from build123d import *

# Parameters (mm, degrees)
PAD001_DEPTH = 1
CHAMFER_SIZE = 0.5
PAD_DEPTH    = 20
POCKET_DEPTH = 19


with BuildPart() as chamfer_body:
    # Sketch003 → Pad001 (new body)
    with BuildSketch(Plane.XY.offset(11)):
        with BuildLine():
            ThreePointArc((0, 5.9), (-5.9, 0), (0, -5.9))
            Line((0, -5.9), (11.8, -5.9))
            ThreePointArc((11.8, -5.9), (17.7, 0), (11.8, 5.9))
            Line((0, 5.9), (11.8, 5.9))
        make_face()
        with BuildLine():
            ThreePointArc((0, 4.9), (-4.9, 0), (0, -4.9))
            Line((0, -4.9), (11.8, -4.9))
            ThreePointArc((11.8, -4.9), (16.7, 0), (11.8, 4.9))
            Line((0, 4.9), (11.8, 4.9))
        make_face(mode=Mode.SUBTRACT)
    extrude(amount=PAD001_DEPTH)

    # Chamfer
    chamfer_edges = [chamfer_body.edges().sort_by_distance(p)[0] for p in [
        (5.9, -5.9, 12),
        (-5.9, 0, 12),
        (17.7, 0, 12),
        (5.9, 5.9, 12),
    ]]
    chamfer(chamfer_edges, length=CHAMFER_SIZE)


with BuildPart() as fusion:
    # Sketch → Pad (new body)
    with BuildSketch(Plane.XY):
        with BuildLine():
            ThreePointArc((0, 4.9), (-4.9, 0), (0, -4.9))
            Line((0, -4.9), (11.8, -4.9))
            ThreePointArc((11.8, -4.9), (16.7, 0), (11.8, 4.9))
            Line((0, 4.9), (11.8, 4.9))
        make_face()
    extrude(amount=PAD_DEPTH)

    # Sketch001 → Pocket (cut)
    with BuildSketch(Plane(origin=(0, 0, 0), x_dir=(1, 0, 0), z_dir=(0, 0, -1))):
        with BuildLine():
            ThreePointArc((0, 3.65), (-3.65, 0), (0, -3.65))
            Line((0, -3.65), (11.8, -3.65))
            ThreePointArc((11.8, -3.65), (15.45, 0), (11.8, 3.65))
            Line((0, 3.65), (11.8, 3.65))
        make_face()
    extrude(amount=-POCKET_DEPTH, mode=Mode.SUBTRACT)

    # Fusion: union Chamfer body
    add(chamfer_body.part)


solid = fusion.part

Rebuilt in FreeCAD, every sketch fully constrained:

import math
import FreeCAD as App
import Part
import Sketcher
from FreeCAD import Vector
Q = App.Units.Quantity


def edges_at(feature, points):
    """Names of the edges that pass closest to the given points."""
    edges = feature.Shape.Edges
    near = lambda p: min(range(len(edges)), key=lambda i: edges[i].distToShape(Part.Vertex(*p))[0])
    return sorted({f"Edge{near(p) + 1}" for p in points})

doc = App.newDocument("Part")
body = doc.addObject("PartDesign::Body", "Body")

sketch1 = doc.addObject("Sketcher::SketchObject", "Sketch")
body.addObject(sketch1)
sketch1.AttachmentSupport = (doc.XY_Plane, [""])
sketch1.MapMode = "FlatFace"
sketch1.AttachmentOffset = App.Placement(Vector(0, 0, 11), App.Rotation())
sketch1.addGeometry([
    Part.ArcOfCircle(Part.Circle(Vector(0, 0, 0), Vector(0, 0, 1), 5.9), math.radians(90), math.radians(270)),
    Part.LineSegment(Vector(0, -5.9, 0), Vector(11.8, -5.9, 0)),
    Part.ArcOfCircle(Part.Circle(Vector(11.8, 0, 0), Vector(0, 0, 1), 5.9), math.radians(-90), math.radians(90)),
    Part.LineSegment(Vector(11.8, 5.9, 0), Vector(0, 5.9, 0)),
    Part.ArcOfCircle(Part.Circle(Vector(0, 0, 0), Vector(0, 0, 1), 4.9), math.radians(90), math.radians(270)),
    Part.LineSegment(Vector(0, 4.9, 0), Vector(11.8, 4.9, 0)),
    Part.ArcOfCircle(Part.Circle(Vector(11.8, 0, 0), Vector(0, 0, 1), 4.9), math.radians(-90), math.radians(90)),
    Part.LineSegment(Vector(11.8, -4.9, 0), Vector(0, -4.9, 0)),
], False)
sketch1.addConstraint([
    Sketcher.Constraint("Tangent", 0, 2, 1, 1),
    Sketcher.Constraint("Tangent", 1, 2, 2, 1),
    Sketcher.Constraint("Tangent", 2, 2, 3, 1),
    Sketcher.Constraint("Tangent", 3, 2, 0, 1),
    Sketcher.Constraint("Tangent", 4, 1, 5, 1),
    Sketcher.Constraint("Tangent", 5, 2, 6, 2),
    Sketcher.Constraint("Tangent", 6, 1, 7, 1),
    Sketcher.Constraint("Tangent", 7, 2, 4, 2),
    Sketcher.Constraint("Horizontal", 1),
    Sketcher.Constraint("Horizontal", 3),
    Sketcher.Constraint("Horizontal", 5),
    Sketcher.Constraint("Horizontal", 7),
    Sketcher.Constraint("Coincident", 0, 3, -1, 1),
    Sketcher.Constraint("Coincident", 4, 3, -1, 1),
    Sketcher.Constraint("Vertical", 6, 3, 1, 2),
    Sketcher.Constraint("Radius", 0, Q("5.9 mm")),
    Sketcher.Constraint("Radius", 4, Q("4.9 mm")),
    Sketcher.Constraint("DistanceX", 1, 1, 1, 2, Q("11.8 mm")),
])
pad1 = doc.addObject("PartDesign::Pad", "Pad")
body.addObject(pad1)
pad1.Profile = sketch1
pad1.Length = 1
doc.recompute()

chamfer = doc.addObject("PartDesign::Chamfer", "Chamfer")
body.addObject(chamfer)
chamfer.Base = (pad1, edges_at(pad1, [
    (5.9, -5.9, 12),
    (-5.9, 0, 12),
    (17.7, 0, 12),
    (5.9, 5.9, 12),
]))
chamfer.Size = 0.5
body2 = doc.addObject("PartDesign::Body", "Body001")

sketch2 = doc.addObject("Sketcher::SketchObject", "Sketch001")
body2.addObject(sketch2)
sketch2.AttachmentSupport = (doc.getObject("XY_Plane001"), [""])
sketch2.MapMode = "FlatFace"
sketch2.addGeometry([
    Part.ArcOfCircle(Part.Circle(Vector(0, 0, 0), Vector(0, 0, 1), 4.9), math.radians(90), math.radians(270)),
    Part.LineSegment(Vector(0, -4.9, 0), Vector(11.8, -4.9, 0)),
    Part.ArcOfCircle(Part.Circle(Vector(11.8, 0, 0), Vector(0, 0, 1), 4.9), math.radians(-90), math.radians(90)),
    Part.LineSegment(Vector(11.8, 4.9, 0), Vector(0, 4.9, 0)),
], False)
sketch2.addConstraint([
    Sketcher.Constraint("Tangent", 0, 2, 1, 1),
    Sketcher.Constraint("Tangent", 1, 2, 2, 1),
    Sketcher.Constraint("Tangent", 2, 2, 3, 1),
    Sketcher.Constraint("Tangent", 3, 2, 0, 1),
    Sketcher.Constraint("Horizontal", 1),
    Sketcher.Constraint("Horizontal", 3),
    Sketcher.Constraint("Coincident", 0, 3, -1, 1),
    Sketcher.Constraint("Radius", 0, Q("4.9 mm")),
    Sketcher.Constraint("DistanceX", 1, 1, 1, 2, Q("11.8 mm")),
])
pad2 = doc.addObject("PartDesign::Pad", "Pad001")
body2.addObject(pad2)
pad2.Profile = sketch2
pad2.Length = 20

sketch3 = doc.addObject("Sketcher::SketchObject", "Sketch002")
body2.addObject(sketch3)
sketch3.AttachmentSupport = (doc.getObject("XY_Plane001"), [""])
sketch3.MapMode = "FlatFace"
sketch3.addGeometry([
    Part.ArcOfCircle(Part.Circle(Vector(0, 0, 0), Vector(0, 0, 1), 3.65), math.radians(90), math.radians(270)),
    Part.LineSegment(Vector(0, 3.65, 0), Vector(11.8, 3.65, 0)),
    Part.ArcOfCircle(Part.Circle(Vector(11.8, 0, 0), Vector(0, 0, 1), 3.65), math.radians(-90), math.radians(90)),
    Part.LineSegment(Vector(11.8, -3.65, 0), Vector(0, -3.65, 0)),
], False)
sketch3.addConstraint([
    Sketcher.Constraint("Tangent", 0, 1, 1, 1),
    Sketcher.Constraint("Tangent", 1, 2, 2, 2),
    Sketcher.Constraint("Tangent", 2, 1, 3, 1),
    Sketcher.Constraint("Tangent", 3, 2, 0, 2),
    Sketcher.Constraint("Horizontal", 1),
    Sketcher.Constraint("Horizontal", 3),
    Sketcher.Constraint("Coincident", 0, 3, -1, 1),
    Sketcher.Constraint("Radius", 0, Q("3.65 mm")),
    Sketcher.Constraint("DistanceX", 1, 1, 1, 2, Q("11.8 mm")),
])
pocket1 = doc.addObject("PartDesign::Pocket", "Pocket")
body2.addObject(pocket1)
pocket1.Profile = sketch3
pocket1.Length = 19
pocket1.Reversed = True
doc.recompute()

boolean = doc.addObject("PartDesign::Boolean", "Boolean")
body2.addObject(boolean)
boolean.Type = "Fuse"
boolean.addObjects([body])

doc.recompute()
